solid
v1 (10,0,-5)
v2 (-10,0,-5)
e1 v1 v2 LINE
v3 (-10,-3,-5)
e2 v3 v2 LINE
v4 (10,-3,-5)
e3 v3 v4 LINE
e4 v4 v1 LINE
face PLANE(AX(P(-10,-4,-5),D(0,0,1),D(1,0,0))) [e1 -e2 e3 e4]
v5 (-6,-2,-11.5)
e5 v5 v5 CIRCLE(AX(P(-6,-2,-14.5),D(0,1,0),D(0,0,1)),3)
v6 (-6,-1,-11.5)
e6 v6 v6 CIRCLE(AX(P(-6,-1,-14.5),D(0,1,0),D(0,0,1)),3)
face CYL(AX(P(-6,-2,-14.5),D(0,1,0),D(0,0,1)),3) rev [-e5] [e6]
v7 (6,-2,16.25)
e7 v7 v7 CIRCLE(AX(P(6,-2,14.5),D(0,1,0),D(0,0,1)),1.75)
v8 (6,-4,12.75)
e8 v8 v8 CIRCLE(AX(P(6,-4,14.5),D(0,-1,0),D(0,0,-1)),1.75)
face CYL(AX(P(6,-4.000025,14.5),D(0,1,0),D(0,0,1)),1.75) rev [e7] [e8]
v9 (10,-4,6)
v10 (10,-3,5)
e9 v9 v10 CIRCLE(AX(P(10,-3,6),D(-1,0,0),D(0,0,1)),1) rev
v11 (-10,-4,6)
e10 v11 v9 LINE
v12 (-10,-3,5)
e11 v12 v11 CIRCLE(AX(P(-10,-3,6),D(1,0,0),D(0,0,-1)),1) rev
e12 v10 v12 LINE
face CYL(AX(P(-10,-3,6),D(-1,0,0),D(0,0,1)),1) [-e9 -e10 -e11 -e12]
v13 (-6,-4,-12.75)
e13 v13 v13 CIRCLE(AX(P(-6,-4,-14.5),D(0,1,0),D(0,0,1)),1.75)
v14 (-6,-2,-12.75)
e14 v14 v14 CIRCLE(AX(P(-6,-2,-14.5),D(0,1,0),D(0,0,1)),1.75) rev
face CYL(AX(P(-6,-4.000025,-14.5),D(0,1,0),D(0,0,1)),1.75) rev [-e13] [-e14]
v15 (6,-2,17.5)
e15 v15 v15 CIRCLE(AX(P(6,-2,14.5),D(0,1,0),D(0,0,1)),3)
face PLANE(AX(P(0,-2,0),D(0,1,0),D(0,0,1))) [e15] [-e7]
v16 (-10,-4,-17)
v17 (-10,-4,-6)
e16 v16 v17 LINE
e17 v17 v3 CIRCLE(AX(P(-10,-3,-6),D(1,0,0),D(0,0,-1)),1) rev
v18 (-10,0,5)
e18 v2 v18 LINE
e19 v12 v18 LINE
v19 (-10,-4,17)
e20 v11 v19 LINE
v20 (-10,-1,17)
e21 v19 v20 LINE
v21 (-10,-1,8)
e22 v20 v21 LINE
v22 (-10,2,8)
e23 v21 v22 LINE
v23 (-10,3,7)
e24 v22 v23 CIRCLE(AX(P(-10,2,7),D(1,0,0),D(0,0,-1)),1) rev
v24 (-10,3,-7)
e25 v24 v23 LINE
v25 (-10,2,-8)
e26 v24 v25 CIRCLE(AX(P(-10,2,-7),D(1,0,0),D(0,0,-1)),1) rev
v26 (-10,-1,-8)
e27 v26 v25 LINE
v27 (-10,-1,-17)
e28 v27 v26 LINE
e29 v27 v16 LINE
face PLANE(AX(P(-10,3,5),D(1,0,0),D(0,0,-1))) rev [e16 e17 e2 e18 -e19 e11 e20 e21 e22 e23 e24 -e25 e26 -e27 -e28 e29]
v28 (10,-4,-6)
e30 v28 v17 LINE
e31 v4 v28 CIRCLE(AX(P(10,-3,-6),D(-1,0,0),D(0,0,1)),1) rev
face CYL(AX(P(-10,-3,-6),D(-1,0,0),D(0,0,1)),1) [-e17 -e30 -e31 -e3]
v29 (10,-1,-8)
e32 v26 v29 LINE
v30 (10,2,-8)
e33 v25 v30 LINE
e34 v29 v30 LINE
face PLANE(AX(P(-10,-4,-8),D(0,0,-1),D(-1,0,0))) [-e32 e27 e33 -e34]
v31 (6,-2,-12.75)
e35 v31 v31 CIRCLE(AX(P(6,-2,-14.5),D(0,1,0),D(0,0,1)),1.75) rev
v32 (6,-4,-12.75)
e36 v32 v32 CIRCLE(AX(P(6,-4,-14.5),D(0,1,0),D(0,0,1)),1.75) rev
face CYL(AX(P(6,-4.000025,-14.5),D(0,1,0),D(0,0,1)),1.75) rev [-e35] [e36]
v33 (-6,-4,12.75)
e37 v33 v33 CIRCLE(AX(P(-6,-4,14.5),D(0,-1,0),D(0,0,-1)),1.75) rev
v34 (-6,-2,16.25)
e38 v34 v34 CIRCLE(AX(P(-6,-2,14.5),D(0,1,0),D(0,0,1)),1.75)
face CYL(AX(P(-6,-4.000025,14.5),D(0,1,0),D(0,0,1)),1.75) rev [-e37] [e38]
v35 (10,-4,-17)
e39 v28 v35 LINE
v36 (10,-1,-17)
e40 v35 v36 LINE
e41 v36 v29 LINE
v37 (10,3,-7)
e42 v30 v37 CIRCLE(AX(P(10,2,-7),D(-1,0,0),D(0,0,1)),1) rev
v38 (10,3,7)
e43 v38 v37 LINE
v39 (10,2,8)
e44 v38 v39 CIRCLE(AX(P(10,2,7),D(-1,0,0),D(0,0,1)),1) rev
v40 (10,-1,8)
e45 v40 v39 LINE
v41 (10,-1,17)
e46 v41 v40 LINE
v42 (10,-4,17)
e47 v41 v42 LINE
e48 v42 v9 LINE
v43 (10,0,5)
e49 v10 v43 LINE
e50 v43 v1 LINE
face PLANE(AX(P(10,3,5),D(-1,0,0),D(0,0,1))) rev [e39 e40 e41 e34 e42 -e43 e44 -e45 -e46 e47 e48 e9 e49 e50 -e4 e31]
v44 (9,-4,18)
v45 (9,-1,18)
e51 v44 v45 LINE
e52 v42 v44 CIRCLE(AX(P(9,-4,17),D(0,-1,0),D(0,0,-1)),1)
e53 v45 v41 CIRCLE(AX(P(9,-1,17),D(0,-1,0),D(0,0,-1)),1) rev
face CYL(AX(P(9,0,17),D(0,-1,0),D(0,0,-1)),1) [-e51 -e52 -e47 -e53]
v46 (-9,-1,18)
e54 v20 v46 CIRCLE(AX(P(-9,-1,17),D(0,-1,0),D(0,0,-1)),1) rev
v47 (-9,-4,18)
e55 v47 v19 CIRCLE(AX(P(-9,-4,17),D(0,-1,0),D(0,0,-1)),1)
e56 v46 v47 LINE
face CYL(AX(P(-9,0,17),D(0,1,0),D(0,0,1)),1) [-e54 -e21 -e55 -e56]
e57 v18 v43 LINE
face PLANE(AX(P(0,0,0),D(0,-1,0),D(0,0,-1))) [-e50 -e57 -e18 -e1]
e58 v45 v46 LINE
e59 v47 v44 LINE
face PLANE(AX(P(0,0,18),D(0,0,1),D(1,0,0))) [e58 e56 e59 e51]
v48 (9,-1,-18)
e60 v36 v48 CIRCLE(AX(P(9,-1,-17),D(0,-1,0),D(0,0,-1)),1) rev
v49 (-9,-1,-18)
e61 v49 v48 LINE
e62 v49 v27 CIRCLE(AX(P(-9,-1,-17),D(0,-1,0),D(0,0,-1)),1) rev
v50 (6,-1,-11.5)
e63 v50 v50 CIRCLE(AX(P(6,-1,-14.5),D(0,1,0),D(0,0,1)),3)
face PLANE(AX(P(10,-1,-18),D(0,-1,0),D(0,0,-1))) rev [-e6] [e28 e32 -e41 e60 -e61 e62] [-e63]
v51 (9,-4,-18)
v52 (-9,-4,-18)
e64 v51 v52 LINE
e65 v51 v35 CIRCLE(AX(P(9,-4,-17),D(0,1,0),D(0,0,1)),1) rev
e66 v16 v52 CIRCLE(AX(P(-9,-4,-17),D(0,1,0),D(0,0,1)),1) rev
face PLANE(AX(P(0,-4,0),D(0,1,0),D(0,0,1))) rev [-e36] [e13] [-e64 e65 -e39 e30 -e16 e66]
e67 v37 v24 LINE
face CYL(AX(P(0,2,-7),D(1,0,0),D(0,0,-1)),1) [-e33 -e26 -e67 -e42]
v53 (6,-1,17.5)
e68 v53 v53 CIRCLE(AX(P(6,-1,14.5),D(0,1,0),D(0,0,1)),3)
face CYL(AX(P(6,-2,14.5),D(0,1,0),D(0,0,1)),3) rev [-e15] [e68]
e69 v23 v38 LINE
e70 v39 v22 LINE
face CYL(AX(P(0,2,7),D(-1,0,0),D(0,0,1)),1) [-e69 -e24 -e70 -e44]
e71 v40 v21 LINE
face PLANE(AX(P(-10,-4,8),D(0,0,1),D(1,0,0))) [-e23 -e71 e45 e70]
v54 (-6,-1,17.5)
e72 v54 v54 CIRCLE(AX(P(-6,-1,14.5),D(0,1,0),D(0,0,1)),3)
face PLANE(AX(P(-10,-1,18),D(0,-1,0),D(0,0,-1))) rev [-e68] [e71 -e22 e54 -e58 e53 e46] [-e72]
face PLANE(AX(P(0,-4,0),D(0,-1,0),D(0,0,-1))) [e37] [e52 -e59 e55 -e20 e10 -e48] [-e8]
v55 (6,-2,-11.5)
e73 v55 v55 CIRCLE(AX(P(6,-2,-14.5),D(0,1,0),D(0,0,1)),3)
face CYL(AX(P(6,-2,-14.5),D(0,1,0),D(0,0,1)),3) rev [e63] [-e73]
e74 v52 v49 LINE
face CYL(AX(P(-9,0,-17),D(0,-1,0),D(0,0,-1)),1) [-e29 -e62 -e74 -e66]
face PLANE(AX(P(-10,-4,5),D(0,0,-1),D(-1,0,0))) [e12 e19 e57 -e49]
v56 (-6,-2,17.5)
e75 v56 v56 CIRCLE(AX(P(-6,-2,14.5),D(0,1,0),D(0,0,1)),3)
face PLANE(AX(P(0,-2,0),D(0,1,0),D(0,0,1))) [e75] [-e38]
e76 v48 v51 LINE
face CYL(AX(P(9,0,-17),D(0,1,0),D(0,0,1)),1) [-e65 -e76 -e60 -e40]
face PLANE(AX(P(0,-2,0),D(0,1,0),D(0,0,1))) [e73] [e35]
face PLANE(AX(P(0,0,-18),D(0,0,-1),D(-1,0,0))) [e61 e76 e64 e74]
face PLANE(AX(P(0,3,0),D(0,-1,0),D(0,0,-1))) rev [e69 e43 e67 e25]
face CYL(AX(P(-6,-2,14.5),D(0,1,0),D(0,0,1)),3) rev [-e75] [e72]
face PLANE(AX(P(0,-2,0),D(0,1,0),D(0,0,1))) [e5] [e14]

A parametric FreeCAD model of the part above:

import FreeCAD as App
import Part
import Sketcher

V = App.Vector
Q = App.Units.Quantity


def edges_at(feature, points):
    """Names of the edges that pass closest to the given points."""
    edges = feature.Shape.Edges
    near = lambda p: min(range(len(edges)), key=lambda i: edges[i].distToShape(Part.Vertex(*p))[0])
    return sorted({f"Edge{near(p) + 1}" for p in points})


def add_polygon(sketch, points):
    """Adds a closed chain of lines whose ends are joined by coincident constraints."""
    first, n = sketch.GeometryCount, len(points)
    for a, b in zip(points, points[1:] + points[:1]):
        sketch.addGeometry(Part.LineSegment(App.Vector(*a, 0), App.Vector(*b, 0)), False)
    for i in range(n):
        sketch.addConstraint(Sketcher.Constraint("Coincident", first + i, 2, first + (i + 1) % n, 1))

doc = App.newDocument("Part")
body = doc.addObject("PartDesign::Body", "Body")

sketch1 = body.newObject("Sketcher::SketchObject", "Sketch")
sketch1.AttachmentSupport = (doc.getObject("XZ_Plane"), [""])
sketch1.MapMode = "FlatFace"
add_polygon(sketch1, [(-10, -5), (-10, 5), (10, 5), (10, -5)])
sketch1.addConstraint([
    Sketcher.Constraint("Vertical", 0),
    Sketcher.Constraint("Horizontal", 1),
    Sketcher.Constraint("Vertical", 2),
    Sketcher.Constraint("Horizontal", 3),
    Sketcher.Constraint("Symmetric", 0, 2, 2, 2, -1, 1),
    Sketcher.Constraint("DistanceX", 1, 1, 1, 2, Q("20 mm")),
    Sketcher.Constraint("DistanceY", 0, 1, 0, 2, Q("10 mm")),
])
pad1 = body.newObject("PartDesign::Pad", "Pad")
pad1.Profile = sketch1
pad1.Length = 3
pad1.Reversed = True

sketch2 = body.newObject("Sketcher::SketchObject", "Sketch001")
sketch2.AttachmentSupport = (doc.getObject("XZ_Plane"), [""])
sketch2.MapMode = "FlatFace"
sketch2.AttachmentOffset = App.Placement(V(0, 0, -3), App.Rotation())
add_polygon(sketch2, [(-10, 5), (-10, 8), (10, 8), (10, 5)])
add_polygon(sketch2, [(-10, -8), (-10, -5), (10, -5), (10, -8)])
sketch2.addConstraint([
    Sketcher.Constraint("Vertical", 0),
    Sketcher.Constraint("Horizontal", 1),
    Sketcher.Constraint("Vertical", 2),
    Sketcher.Constraint("Horizontal", 3),
    Sketcher.Constraint("Vertical", 4),
    Sketcher.Constraint("Horizontal", 5),
    Sketcher.Constraint("Vertical", 6),
    Sketcher.Constraint("Horizontal", 7),
    Sketcher.Constraint("Symmetric", 2, 2, 4, 2, -1, 1),
    Sketcher.Constraint("Symmetric", 0, 2, 6, 2, -1, 1),
    Sketcher.Constraint("Vertical", 3, 2, 4, 2),
    Sketcher.Constraint("DistanceX", 1, 1, 1, 2, Q("20 mm")),
    Sketcher.Constraint("DistanceY", 0, 1, 0, 2, Q("3 mm")),
    Sketcher.Constraint("DistanceY", -1, 1, 0, 2, Q("8 mm")),
])
pad2 = body.newObject("PartDesign::Pad", "Pad001")
pad2.Profile = sketch2
pad2.Length = 7

sketch3 = body.newObject("Sketcher::SketchObject", "Sketch002")
sketch3.AttachmentSupport = (doc.getObject("XY_Plane"), [""])
sketch3.MapMode = "FlatFace"
sketch3.AttachmentOffset = App.Placement(V(0, 0, 8), App.Rotation())
add_polygon(sketch3, [(-10, -1), (-10, -4), (10, -4), (10, -1)])
sketch3.addConstraint([
    Sketcher.Constraint("Vertical", 0),
    Sketcher.Constraint("Horizontal", 1),
    Sketcher.Constraint("Vertical", 2),
    Sketcher.Constraint("Horizontal", 3),
    Sketcher.Constraint("DistanceX", 1, 1, 1, 2, Q("20 mm")),
    Sketcher.Constraint("DistanceY", 0, 2, 0, 1, Q("3 mm")),
    Sketcher.Constraint("DistanceX", 0, 2, -1, 1, Q("10 mm")),
    Sketcher.Constraint("DistanceY", 0, 2, -1, 1, Q("4 mm")),
])
pad3 = body.newObject("PartDesign::Pad", "Pad002")
pad3.Profile = sketch3
pad3.Length = 10

sketch4 = body.newObject("Sketcher::SketchObject", "Sketch003")
sketch4.AttachmentSupport = (doc.getObject("XY_Plane"), [""])
sketch4.MapMode = "FlatFace"
sketch4.AttachmentOffset = App.Placement(V(0, 0, -8), App.Rotation())
add_polygon(sketch4, [(10, -1), (10, -4), (-10, -4), (-10, -1)])
sketch4.addConstraint([
    Sketcher.Constraint("Vertical", 0),
    Sketcher.Constraint("Horizontal", 1),
    Sketcher.Constraint("Vertical", 2),
    Sketcher.Constraint("Horizontal", 3),
    Sketcher.Constraint("DistanceX", 1, 2, 1, 1, Q("20 mm")),
    Sketcher.Constraint("DistanceY", 0, 2, 0, 1, Q("3 mm")),
    Sketcher.Constraint("DistanceX", -1, 1, 0, 2, Q("10 mm")),
    Sketcher.Constraint("DistanceY", 0, 2, -1, 1, Q("4 mm")),
])
pad4 = body.newObject("PartDesign::Pad", "Pad003")
pad4.Profile = sketch4
pad4.Length = 10
pad4.Reversed = True

sketch5 = body.newObject("Sketcher::SketchObject", "Sketch004")
sketch5.AttachmentSupport = (doc.getObject("XZ_Plane"), [""])
sketch5.MapMode = "FlatFace"
sketch5.AttachmentOffset = App.Placement(V(0, 0, 1), App.Rotation())
sketch5.addGeometry([
    Part.Circle(V(-6, -14.5, 0), V(0, 0, 1), 1.8),
    Part.Circle(V(6, -14.5, 0), V(0, 0, 1), 1.8),
    Part.Circle(V(-6, 14.5, 0), V(0, 0, 1), 1.8),
    Part.Circle(V(6, 14.5, 0), V(0, 0, 1), 1.8),
], False)
sketch5.addConstraint([
    Sketcher.Constraint("Equal", 0, 1),
    Sketcher.Constraint("Equal", 1, 2),
    Sketcher.Constraint("Equal", 2, 3),
    Sketcher.Constraint("Symmetric", 1, 3, 2, 3, -1, 1),
    Sketcher.Constraint("Symmetric", 0, 3, 3, 3, -1, 1),
    Sketcher.Constraint("Symmetric", 0, 3, 1, 3, -2),
    Sketcher.Constraint("Diameter", 0, Q("3.5 mm")),
    Sketcher.Constraint("DistanceX", 0, 3, -1, 1, Q("6 mm")),
    Sketcher.Constraint("DistanceY", 0, 3, 2, 3, Q("29 mm")),
])
pocket1 = body.newObject("PartDesign::Pocket", "Pocket")
pocket1.Profile = sketch5
pocket1.Type = "ThroughAll"
pocket1.Reversed = True

sketch6 = body.newObject("Sketcher::SketchObject", "Sketch005")
sketch6.AttachmentSupport = (doc.getObject("XZ_Plane"), [""])
sketch6.MapMode = "FlatFace"
sketch6.AttachmentOffset = App.Placement(V(0, 0, 1), App.Rotation())
sketch6.addGeometry([
    Part.Circle(V(-6, -14.5, 0), V(0, 0, 1), 3),
    Part.Circle(V(-6, -14.5, 0), V(0, 0, 1), 1.8),
    Part.Circle(V(6, -14.5, 0), V(0, 0, 1), 3),
    Part.Circle(V(6, -14.5, 0), V(0, 0, 1), 1.8),
    Part.Circle(V(-6, 14.5, 0), V(0, 0, 1), 3),
    Part.Circle(V(-6, 14.5, 0), V(0, 0, 1), 1.8),
    Part.Circle(V(6, 14.5, 0), V(0, 0, 1), 3),
    Part.Circle(V(6, 14.5, 0), V(0, 0, 1), 1.8),
], False)
sketch6.addConstraint([
    Sketcher.Constraint("Coincident", 1, 3, 0, 3),
    Sketcher.Constraint("Coincident", 3, 3, 2, 3),
    Sketcher.Constraint("Coincident", 5, 3, 4, 3),
    Sketcher.Constraint("Coincident", 7, 3, 6, 3),
    Sketcher.Constraint("Equal", 0, 2),
    Sketcher.Constraint("Equal", 1, 3),
    Sketcher.Constraint("Equal", 2, 4),
    Sketcher.Constraint("Equal", 3, 5),
    Sketcher.Constraint("Equal", 4, 6),
    Sketcher.Constraint("Equal", 5, 7),
    Sketcher.Constraint("Symmetric", 2, 3, 4, 3, -1, 1),
    Sketcher.Constraint("Symmetric", 0, 3, 6, 3, -1, 1),
    Sketcher.Constraint("Symmetric", 0, 3, 2, 3, -2),
    Sketcher.Constraint("Diameter", 0, Q("6 mm")),
    Sketcher.Constraint("Diameter", 1, Q("3.5 mm")),
    Sketcher.Constraint("DistanceX", 0, 3, -1, 1, Q("6 mm")),
    Sketcher.Constraint("DistanceY", 0, 3, 4, 3, Q("29 mm")),
])
pocket2 = body.newObject("PartDesign::Pocket", "Pocket001")
pocket2.Profile = sketch6
pocket2.Length = 1
pocket2.Reversed = True
doc.recompute()

fillet = body.newObject("PartDesign::Fillet", "Fillet")
fillet.Base = (pocket2, edges_at(pocket2, [
    (10, -2.5, 18),
    (-10, -2.5, 18),
    (-10, -2.5, -18),
    (10, -2.5, -18),
    (0, 3, 8),
    (0, 3, -8),
    (0, -4, 5),
    (0, -4, -5),
]))
fillet.Radius = 1

doc.recompute()
